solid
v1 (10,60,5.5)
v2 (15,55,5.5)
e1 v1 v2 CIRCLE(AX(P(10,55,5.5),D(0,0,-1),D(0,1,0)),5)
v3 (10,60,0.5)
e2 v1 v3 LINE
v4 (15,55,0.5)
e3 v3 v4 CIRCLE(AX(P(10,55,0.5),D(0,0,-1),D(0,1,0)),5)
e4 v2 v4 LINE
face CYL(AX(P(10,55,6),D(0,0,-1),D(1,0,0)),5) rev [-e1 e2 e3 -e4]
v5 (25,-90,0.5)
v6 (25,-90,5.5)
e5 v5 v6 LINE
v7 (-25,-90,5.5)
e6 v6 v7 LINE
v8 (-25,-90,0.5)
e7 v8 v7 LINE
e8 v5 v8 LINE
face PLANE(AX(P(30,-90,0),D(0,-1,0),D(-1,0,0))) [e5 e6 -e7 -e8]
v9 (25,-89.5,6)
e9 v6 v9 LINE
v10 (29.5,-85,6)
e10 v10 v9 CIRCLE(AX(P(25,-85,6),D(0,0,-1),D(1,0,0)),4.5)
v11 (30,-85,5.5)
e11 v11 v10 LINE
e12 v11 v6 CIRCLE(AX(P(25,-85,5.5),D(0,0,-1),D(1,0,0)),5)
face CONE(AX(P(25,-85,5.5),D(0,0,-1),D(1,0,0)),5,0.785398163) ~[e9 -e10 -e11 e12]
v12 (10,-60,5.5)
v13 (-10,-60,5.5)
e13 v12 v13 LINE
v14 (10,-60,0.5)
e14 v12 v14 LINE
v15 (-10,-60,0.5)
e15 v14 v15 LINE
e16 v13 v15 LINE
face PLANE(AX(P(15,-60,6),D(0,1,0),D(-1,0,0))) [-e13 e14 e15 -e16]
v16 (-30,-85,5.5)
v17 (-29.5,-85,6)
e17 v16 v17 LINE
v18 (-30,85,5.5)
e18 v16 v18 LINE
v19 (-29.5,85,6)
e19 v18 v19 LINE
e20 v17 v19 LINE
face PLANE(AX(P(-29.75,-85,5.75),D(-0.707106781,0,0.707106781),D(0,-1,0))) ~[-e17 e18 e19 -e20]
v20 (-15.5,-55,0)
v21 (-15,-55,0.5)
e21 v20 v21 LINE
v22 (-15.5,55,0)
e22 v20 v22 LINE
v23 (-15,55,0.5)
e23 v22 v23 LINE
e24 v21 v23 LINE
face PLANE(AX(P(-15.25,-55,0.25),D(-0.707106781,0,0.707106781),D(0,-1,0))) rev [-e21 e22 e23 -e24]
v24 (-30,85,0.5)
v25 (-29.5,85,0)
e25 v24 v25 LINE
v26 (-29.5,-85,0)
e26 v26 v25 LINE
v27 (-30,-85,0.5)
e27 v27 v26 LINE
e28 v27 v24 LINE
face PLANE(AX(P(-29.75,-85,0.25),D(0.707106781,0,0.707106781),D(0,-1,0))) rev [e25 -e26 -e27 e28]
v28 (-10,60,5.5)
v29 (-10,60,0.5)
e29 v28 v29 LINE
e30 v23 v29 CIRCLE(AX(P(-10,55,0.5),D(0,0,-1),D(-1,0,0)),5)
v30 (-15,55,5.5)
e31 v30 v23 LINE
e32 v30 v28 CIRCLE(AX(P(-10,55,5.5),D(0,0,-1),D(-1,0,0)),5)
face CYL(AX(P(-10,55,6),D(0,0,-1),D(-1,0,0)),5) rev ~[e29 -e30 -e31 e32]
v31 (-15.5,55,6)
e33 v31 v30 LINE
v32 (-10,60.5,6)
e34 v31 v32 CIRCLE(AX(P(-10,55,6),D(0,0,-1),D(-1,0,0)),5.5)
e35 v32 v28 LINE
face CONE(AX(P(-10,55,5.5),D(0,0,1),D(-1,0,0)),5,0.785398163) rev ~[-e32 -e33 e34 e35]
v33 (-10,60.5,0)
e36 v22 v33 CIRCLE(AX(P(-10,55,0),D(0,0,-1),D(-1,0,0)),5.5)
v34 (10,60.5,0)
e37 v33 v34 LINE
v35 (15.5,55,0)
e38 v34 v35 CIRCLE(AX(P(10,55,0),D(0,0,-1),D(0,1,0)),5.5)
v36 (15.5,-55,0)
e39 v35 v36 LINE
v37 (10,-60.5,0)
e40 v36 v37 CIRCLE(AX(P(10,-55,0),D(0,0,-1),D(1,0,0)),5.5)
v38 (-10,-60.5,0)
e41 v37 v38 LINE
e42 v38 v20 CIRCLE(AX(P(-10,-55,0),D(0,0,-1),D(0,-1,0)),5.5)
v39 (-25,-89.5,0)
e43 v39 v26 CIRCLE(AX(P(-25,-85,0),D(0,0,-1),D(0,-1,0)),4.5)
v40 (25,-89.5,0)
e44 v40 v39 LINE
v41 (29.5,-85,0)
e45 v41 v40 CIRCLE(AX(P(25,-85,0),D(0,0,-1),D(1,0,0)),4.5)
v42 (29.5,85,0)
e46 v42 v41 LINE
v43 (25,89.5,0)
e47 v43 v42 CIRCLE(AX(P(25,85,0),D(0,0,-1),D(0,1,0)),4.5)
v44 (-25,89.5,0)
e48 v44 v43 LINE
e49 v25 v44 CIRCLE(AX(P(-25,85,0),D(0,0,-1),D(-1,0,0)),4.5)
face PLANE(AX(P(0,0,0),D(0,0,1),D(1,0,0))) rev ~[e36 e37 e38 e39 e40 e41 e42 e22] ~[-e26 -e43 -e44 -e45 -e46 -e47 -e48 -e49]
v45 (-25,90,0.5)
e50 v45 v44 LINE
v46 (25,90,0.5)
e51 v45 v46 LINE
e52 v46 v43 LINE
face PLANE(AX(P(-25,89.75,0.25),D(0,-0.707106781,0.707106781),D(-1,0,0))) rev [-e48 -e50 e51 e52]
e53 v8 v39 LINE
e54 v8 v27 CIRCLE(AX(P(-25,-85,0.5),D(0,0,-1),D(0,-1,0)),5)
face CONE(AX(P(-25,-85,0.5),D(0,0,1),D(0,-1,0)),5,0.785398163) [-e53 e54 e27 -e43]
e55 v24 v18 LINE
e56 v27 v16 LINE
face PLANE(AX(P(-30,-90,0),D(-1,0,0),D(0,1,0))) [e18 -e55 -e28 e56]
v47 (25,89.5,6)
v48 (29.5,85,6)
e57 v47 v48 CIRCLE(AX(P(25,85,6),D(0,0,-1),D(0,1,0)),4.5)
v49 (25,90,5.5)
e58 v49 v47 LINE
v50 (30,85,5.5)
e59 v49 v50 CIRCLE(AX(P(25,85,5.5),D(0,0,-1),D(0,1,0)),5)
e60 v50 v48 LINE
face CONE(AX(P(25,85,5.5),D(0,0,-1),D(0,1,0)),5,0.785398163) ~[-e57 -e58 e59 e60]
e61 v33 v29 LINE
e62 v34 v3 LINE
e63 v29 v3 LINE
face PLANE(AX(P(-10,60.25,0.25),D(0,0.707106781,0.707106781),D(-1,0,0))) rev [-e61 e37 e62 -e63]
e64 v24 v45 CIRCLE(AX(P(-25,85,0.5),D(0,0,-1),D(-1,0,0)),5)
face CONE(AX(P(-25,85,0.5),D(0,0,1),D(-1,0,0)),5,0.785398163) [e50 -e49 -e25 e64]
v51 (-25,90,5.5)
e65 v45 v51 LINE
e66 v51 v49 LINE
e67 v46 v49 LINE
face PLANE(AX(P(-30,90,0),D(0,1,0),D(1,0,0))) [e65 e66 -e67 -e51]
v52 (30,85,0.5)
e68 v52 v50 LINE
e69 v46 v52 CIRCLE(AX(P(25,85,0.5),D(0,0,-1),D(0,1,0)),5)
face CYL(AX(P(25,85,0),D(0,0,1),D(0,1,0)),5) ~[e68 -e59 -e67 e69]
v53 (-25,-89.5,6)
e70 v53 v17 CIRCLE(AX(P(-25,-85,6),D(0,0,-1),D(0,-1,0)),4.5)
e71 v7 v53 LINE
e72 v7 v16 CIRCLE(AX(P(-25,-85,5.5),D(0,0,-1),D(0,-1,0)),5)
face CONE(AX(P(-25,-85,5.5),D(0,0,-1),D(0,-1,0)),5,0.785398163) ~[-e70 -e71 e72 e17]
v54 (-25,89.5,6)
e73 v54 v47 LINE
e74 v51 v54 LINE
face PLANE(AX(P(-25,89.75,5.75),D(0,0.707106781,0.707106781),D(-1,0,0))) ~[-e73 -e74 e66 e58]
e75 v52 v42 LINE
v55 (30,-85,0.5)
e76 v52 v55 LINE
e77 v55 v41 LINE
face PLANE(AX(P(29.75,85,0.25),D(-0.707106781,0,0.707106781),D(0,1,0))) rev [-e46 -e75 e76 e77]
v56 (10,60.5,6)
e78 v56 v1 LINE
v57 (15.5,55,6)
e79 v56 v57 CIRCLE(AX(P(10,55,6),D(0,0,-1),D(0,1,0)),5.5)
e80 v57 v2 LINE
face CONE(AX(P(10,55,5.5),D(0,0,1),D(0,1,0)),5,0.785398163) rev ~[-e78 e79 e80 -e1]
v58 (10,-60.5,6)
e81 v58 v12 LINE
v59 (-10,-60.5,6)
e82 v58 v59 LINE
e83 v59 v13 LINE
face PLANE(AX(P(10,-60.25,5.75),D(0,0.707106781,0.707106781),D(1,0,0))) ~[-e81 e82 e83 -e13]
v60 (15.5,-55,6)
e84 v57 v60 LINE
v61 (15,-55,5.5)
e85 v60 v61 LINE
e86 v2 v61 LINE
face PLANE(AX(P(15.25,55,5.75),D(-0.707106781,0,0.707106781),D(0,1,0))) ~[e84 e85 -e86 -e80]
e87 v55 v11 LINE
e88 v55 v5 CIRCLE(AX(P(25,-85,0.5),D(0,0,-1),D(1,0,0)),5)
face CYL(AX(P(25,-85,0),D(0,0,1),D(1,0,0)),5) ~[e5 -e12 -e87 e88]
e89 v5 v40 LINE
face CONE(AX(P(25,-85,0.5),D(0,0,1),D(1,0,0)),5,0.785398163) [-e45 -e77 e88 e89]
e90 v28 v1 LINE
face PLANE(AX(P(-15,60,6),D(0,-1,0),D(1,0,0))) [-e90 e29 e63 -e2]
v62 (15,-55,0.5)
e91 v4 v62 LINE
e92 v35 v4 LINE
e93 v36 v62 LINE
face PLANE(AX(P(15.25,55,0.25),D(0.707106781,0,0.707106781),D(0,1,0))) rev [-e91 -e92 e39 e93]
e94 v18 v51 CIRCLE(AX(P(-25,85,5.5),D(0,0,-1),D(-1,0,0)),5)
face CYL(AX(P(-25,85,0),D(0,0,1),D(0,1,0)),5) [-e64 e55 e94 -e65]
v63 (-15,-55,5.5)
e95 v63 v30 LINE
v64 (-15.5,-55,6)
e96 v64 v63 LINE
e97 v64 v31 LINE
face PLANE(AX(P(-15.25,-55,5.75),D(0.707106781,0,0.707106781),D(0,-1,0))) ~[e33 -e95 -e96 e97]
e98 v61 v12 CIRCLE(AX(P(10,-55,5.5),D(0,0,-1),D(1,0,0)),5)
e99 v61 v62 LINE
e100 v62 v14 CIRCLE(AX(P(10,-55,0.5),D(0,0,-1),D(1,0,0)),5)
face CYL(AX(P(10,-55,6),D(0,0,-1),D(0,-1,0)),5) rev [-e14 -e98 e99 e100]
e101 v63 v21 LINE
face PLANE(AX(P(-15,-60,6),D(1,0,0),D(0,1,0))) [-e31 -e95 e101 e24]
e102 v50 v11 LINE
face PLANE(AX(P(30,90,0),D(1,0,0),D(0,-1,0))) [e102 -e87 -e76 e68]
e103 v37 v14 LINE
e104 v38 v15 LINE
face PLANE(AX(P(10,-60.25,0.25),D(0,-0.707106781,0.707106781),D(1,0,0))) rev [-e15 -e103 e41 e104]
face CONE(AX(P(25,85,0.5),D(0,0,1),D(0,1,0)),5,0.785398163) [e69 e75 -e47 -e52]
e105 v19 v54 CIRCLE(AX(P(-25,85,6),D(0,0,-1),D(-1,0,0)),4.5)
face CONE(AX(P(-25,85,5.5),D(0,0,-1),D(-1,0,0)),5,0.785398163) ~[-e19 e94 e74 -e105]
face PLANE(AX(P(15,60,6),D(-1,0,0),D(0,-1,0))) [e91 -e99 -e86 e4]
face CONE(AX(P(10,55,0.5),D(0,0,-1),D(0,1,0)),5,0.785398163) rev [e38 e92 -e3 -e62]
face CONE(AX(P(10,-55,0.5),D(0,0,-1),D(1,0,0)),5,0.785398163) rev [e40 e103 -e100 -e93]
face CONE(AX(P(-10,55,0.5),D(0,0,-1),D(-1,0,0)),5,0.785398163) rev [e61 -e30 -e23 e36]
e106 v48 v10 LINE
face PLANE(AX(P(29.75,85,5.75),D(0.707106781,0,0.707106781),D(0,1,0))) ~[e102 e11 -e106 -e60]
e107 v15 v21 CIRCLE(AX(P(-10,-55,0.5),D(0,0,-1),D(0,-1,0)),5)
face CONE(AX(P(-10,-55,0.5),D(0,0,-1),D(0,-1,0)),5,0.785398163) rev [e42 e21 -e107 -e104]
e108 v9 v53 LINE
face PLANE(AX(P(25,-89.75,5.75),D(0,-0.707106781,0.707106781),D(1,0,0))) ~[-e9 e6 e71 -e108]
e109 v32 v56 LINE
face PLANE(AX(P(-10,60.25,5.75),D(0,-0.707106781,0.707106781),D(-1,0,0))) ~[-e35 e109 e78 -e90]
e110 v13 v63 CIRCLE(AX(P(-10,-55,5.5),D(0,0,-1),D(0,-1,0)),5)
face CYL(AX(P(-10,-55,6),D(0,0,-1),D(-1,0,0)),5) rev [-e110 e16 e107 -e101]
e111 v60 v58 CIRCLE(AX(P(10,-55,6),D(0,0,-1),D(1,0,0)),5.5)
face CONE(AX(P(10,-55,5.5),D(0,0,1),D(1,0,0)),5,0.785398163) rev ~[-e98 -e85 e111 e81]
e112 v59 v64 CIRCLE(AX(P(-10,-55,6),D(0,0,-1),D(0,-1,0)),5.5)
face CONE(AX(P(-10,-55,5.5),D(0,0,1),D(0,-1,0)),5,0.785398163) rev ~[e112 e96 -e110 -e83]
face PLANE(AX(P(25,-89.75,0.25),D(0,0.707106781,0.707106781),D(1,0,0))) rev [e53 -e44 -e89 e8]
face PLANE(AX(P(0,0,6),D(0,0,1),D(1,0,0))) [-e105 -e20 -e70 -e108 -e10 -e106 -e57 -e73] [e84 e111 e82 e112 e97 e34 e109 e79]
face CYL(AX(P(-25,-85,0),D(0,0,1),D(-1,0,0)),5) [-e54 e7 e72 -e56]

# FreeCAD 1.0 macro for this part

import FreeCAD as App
import Part
import Sketcher
from FreeCAD import Vector
Q = App.Units.Quantity


def edges_at(feature, points):
    """Names of the edges that pass closest to the given points."""
    edges = feature.Shape.Edges
    near = lambda p: min(range(len(edges)), key=lambda i: edges[i].distToShape(Part.Vertex(*p))[0])
    return sorted({f"Edge{near(p) + 1}" for p in points})


def add_polygon(sketch, points):
    """Adds a closed chain of lines whose ends are joined by coincident constraints."""
    first, n = sketch.GeometryCount, len(points)
    for a, b in zip(points, points[1:] + points[:1]):
        sketch.addGeometry(Part.LineSegment(App.Vector(*a, 0), App.Vector(*b, 0)), False)
    for i in range(n):
        sketch.addConstraint(Sketcher.Constraint("Coincident", first + i, 2, first + (i + 1) % n, 1))

doc = App.newDocument("Part")
body = doc.addObject("PartDesign::Body", "Body")

# Sketch on XY plane
sketch1 = doc.addObject("Sketcher::SketchObject", "Sketch")
body.addObject(sketch1)
sketch1.AttachmentSupport = (doc.XY_Plane, [""])
sketch1.MapMode = "FlatFace"
add_polygon(sketch1, [(30, 90), (-30, 90), (-30, -90), (30, -90)])  # lines 0-3
sketch1.addConstraint([
    Sketcher.Constraint("Horizontal", 0),
    Sketcher.Constraint("Vertical", 1),
    Sketcher.Constraint("Horizontal", 2),
    Sketcher.Constraint("Vertical", 3),
    Sketcher.Constraint("Symmetric", 0, 2, 2, 2, -1, 1),
    Sketcher.Constraint("DistanceX", 0, 2, 0, 1, Q("60 mm")),
    Sketcher.Constraint("DistanceY", 1, 2, 1, 1, Q("180 mm")),
])
pad1 = doc.addObject("PartDesign::Pad", "Pad")
body.addObject(pad1)
pad1.Profile = sketch1
pad1.Length = 6

# Sketch on XY plane
sketch2 = doc.addObject("Sketcher::SketchObject", "Sketch001")
body.addObject(sketch2)
sketch2.AttachmentSupport = (doc.XY_Plane, [""])
sketch2.MapMode = "FlatFace"
sketch2.AttachmentOffset = App.Placement(Vector(0, 0, 6), App.Rotation())
add_polygon(sketch2, [(15, 60), (-15, 60), (-15, -60), (15, -60)])  # lines 0-3
sketch2.addConstraint([
    Sketcher.Constraint("Horizontal", 0),
    Sketcher.Constraint("Vertical", 1),
    Sketcher.Constraint("Horizontal", 2),
    Sketcher.Constraint("Vertical", 3),
    Sketcher.Constraint("Symmetric", 0, 2, 2, 2, -1, 1),
    Sketcher.Constraint("DistanceX", 0, 2, 0, 1, Q("30 mm")),
    Sketcher.Constraint("DistanceY", 1, 2, 1, 1, Q("120 mm")),
])
pocket1 = doc.addObject("PartDesign::Pocket", "Pocket")
body.addObject(pocket1)
pocket1.Profile = sketch2
pocket1.Type = "ThroughAll"
doc.recompute()

fillet = doc.addObject("PartDesign::Fillet", "Fillet")
body.addObject(fillet)
fillet.Base = (pocket1, edges_at(pocket1, [
    (-30, 90, 3),
    (30, 90, 3),
    (30, -90, 3),
    (-30, -90, 3),
    (-15, 60, 3),
    (15, 60, 3),
    (15, -60, 3),
    (-15, -60, 3),
]))
fillet.Radius = 5
doc.recompute()

chamfer = doc.addObject("PartDesign::Chamfer", "Chamfer")
body.addObject(chamfer)
chamfer.Base = (fillet, edges_at(fillet, [
    (0, 90, 6),
    (-28.535, 88.535, 6),
    (-30, 0, 6),
    (-28.535, -88.535, 6),
    (0, -90, 6),
    (28.535, -88.535, 6),
    (30, 0, 6),
    (28.535, 88.535, 6),
    (0, 90, 0),
    (-28.535, 88.535, 0),
    (-30, 0, 0),
    (-28.535, -88.535, 0),
    (0, -90, 0),
    (28.535, -88.535, 0),
    (30, 0, 0),
    (28.535, 88.535, 0),
    (-15, 0, 6),
    (-13.536, 58.535, 6),
    (0, 60, 6),
    (13.536, 58.535, 6),
    (15, 0, 6),
    (13.536, -58.535, 6),
    (0, -60, 6),
    (-13.536, -58.535, 6),
    (-15, 0, 0),
    (-13.536, -58.535, 0),
    (0, -60, 0),
    (13.536, -58.535, 0),
    (15, 0, 0),
    (13.536, 58.535, 0),
    (0, 60, 0),
    (-13.536, 58.535, 0),
]))
chamfer.Size = 0.5

doc.recompute()
